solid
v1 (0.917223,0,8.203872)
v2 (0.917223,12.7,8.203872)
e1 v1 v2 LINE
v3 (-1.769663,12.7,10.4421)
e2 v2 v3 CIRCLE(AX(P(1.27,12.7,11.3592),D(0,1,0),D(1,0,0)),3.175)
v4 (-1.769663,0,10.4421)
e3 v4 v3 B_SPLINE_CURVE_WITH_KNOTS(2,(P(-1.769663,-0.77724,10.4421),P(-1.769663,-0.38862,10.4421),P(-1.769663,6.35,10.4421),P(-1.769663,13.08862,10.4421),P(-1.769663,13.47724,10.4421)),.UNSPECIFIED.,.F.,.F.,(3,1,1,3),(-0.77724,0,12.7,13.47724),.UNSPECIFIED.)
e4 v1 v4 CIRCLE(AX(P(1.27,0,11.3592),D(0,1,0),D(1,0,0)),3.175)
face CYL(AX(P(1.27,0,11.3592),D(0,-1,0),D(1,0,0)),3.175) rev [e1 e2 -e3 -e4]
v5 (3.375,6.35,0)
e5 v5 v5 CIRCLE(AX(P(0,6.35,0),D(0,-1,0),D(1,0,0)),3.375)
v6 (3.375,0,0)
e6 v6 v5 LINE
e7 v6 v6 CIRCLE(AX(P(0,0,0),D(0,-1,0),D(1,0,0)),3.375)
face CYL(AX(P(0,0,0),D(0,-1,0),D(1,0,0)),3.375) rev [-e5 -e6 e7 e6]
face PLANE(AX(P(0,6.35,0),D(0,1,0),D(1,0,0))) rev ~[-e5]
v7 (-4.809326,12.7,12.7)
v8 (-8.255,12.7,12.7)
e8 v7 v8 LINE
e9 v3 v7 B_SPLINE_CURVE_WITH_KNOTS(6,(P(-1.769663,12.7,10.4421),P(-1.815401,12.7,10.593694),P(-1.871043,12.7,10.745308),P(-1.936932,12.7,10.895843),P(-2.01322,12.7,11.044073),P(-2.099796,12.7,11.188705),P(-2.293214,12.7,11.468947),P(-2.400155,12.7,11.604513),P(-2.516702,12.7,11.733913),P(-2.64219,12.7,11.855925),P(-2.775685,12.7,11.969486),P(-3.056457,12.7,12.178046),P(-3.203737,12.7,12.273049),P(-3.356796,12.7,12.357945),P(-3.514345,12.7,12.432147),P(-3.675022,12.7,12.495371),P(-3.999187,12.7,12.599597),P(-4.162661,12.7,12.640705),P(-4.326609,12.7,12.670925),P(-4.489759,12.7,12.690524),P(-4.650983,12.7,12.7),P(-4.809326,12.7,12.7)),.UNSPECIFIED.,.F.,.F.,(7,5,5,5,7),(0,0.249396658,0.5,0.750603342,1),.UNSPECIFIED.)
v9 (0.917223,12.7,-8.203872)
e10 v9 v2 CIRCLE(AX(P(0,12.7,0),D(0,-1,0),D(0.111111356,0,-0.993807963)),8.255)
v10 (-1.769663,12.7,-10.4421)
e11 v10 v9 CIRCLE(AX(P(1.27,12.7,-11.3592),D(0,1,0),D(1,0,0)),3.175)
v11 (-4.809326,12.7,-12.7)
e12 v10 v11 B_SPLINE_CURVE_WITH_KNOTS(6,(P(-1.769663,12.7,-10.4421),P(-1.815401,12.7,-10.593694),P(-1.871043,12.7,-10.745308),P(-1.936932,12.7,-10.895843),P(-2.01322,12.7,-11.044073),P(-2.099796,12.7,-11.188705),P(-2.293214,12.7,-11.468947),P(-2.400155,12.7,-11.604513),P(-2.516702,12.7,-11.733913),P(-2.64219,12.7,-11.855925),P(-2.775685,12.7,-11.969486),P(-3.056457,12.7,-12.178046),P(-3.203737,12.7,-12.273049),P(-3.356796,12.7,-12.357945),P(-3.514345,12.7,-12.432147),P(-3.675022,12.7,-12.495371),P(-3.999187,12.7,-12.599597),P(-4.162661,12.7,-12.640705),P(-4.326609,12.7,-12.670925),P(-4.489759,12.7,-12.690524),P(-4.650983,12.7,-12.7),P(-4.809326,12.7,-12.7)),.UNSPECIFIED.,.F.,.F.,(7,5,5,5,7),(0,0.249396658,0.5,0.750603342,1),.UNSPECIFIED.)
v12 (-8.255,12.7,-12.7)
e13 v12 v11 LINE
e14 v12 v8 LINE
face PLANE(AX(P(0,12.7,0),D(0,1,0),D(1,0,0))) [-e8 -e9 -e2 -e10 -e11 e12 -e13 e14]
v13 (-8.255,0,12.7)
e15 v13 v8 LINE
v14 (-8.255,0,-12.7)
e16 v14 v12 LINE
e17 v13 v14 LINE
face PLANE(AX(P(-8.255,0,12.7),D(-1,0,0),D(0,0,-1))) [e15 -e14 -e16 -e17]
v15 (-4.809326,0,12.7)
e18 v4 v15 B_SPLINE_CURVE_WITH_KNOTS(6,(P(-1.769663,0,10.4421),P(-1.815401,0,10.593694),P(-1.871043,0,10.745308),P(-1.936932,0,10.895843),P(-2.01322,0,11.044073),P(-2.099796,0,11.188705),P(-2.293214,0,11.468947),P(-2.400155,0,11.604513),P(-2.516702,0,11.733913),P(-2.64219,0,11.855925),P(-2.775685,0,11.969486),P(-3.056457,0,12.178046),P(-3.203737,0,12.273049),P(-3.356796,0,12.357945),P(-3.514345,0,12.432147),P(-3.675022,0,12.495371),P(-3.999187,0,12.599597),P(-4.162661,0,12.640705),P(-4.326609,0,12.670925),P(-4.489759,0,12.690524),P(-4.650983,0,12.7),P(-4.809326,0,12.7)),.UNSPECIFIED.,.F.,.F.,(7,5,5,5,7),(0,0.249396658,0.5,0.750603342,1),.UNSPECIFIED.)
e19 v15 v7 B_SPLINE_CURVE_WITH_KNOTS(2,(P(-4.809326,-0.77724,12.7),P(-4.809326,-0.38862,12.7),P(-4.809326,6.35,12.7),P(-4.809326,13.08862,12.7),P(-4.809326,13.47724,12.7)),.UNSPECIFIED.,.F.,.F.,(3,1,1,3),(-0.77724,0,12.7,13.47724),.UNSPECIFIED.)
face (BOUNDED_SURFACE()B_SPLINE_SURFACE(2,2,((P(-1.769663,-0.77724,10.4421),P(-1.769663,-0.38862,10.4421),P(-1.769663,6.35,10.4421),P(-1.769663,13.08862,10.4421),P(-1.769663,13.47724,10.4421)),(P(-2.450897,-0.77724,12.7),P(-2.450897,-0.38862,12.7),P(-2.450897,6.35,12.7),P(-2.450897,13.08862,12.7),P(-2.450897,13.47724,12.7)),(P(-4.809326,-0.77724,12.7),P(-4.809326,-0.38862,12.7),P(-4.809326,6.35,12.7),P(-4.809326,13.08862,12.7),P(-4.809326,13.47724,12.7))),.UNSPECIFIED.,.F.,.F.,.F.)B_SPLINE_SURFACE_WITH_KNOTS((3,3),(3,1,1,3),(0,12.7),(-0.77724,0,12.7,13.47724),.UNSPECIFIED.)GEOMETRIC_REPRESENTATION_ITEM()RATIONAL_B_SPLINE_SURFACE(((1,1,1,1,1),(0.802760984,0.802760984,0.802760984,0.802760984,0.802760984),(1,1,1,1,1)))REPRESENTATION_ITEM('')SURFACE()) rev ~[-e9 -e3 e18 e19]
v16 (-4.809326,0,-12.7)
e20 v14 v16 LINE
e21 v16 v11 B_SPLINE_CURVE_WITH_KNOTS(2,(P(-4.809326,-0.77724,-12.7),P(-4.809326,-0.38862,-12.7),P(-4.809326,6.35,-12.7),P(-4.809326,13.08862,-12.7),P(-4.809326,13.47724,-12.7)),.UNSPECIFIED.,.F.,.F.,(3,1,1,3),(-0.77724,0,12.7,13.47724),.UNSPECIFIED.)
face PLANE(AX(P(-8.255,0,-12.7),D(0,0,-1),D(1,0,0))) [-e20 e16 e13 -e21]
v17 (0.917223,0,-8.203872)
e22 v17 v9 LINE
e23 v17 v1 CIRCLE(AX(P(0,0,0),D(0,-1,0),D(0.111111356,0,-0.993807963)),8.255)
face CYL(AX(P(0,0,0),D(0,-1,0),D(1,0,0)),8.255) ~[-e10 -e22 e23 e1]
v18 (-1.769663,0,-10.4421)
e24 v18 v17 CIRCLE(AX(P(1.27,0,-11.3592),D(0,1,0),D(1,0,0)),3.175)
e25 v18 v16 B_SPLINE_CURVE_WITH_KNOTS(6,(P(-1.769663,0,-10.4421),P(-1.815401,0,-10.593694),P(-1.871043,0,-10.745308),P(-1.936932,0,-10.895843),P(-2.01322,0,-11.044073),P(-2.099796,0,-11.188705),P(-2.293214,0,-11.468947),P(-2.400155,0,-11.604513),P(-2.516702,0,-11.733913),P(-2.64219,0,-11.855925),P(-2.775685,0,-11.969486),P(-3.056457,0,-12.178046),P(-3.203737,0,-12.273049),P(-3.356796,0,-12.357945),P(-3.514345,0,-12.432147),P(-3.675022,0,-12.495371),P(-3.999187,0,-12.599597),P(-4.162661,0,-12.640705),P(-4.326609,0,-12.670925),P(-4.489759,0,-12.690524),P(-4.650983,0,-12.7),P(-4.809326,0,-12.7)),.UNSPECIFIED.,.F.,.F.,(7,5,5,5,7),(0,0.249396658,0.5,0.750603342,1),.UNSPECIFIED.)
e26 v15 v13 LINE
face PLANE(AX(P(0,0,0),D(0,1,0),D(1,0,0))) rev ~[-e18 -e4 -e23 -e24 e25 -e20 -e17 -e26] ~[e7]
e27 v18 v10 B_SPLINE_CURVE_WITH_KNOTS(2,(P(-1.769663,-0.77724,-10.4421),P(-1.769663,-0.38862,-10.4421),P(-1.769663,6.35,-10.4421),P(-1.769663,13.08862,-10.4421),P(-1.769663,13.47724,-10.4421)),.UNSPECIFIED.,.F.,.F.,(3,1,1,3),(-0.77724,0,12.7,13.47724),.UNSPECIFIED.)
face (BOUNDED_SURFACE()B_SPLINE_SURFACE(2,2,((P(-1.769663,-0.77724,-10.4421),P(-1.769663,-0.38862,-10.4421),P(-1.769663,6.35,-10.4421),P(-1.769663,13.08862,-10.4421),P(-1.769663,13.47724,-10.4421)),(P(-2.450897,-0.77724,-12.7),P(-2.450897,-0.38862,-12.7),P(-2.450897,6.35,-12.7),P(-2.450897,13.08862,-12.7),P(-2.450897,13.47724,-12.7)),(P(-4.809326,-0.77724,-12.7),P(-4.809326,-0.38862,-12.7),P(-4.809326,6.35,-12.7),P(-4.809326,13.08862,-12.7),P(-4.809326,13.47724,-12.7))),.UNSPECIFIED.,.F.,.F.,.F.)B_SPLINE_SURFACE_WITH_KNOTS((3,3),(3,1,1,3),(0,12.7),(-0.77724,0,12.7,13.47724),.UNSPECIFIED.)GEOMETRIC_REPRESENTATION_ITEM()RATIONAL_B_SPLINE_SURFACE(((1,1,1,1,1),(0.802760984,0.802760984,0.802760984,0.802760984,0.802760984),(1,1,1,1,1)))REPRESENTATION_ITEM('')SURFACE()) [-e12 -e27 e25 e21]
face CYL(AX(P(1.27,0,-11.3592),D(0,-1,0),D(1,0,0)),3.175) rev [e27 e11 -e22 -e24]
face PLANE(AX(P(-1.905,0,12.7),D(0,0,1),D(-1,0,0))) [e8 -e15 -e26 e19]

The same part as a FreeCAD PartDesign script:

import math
import FreeCAD as App
import Part
import Sketcher

V = App.Vector
Q = App.Units.Quantity


def edges_at(feature, points):
    """Names of the edges that pass closest to the given points."""
    edges = feature.Shape.Edges
    near = lambda p: min(range(len(edges)), key=lambda i: edges[i].distToShape(Part.Vertex(*p))[0])
    return sorted({f"Edge{near(p) + 1}" for p in points})

doc = App.newDocument("Part")
body = doc.addObject("PartDesign::Body", "Body")

# Sketch on XZ plane
sketch1 = body.newObject("Sketcher::SketchObject", "Sketch")
sketch1.AttachmentSupport = (doc.getObject("XZ_Plane"), [""])
sketch1.MapMode = "FlatFace"
sketch1.addGeometry([
    Part.ArcOfCircle(Part.Circle(V(1.3, -11.4, 0), V(0, 0, 1), 3.2), math.radians(96), math.radians(180)),  # 0
    Part.LineSegment(V(-1.9, -11.4, 0), V(-1.9, -12.7, 0)),  # 1
    Part.LineSegment(V(-1.9, -12.7, 0), V(-8.3, -12.7, 0)),  # 2
    Part.LineSegment(V(-8.3, -12.7, 0), V(-8.3, 12.7, 0)),  # 3
    Part.LineSegment(V(-8.3, 12.7, 0), V(-1.9, 12.7, 0)),  # 4
    Part.LineSegment(V(-1.9, 12.7, 0), V(-1.9, 11.4, 0)),  # 5
    Part.ArcOfCircle(Part.Circle(V(1.3, 11.4, 0), V(0, 0, 1), 3.2), math.radians(180), math.radians(264)),  # 6
    Part.ArcOfCircle(Part.Circle(V(0, 0, 0), V(0, 0, 1), 8.3), math.radians(-84), math.radians(84)),  # 7
], False)
sketch1.addConstraint([
    Sketcher.Constraint("Tangent", 0, 2, 1, 1),
    Sketcher.Constraint("Coincident", 1, 2, 2, 1),
    Sketcher.Constraint("Coincident", 2, 2, 3, 1),
    Sketcher.Constraint("Coincident", 3, 2, 4, 1),
    Sketcher.Constraint("Coincident", 4, 2, 5, 1),
    Sketcher.Constraint("Tangent", 5, 2, 6, 1),
    Sketcher.Constraint("Tangent", 6, 2, 7, 2),
    Sketcher.Constraint("Tangent", 7, 1, 0, 1),
    Sketcher.Constraint("Vertical", 1),
    Sketcher.Constraint("Horizontal", 2),
    Sketcher.Constraint("Vertical", 3),
    Sketcher.Constraint("Horizontal", 4),
    Sketcher.Constraint("Vertical", 5),
    Sketcher.Constraint("Coincident", 7, 3, -1, 1),
    Sketcher.Constraint("Equal", 0, 6),
    Sketcher.Constraint("Symmetric", 1, 2, 4, 2, -1),
    Sketcher.Constraint("DistanceY", 3, 1, 3, 2, Q("1 in")),
    Sketcher.Constraint("Radius", 0, Q("0.125 in")),
    Sketcher.Constraint("DistanceX", 2, 2, 2, 1, Q("0.25 in")),
    Sketcher.Constraint("Radius", 7, Q("0.325 in")),
    Sketcher.Constraint("DistanceX", -1, 1, 0, 3, Q("0.05 in")),
])
pad1 = body.newObject("PartDesign::Pad", "Pad")
pad1.Profile = sketch1
pad1.Length = Q("0.5 in")
pad1.Reversed = True

# Sketch on XZ plane
sketch2 = body.newObject("Sketcher::SketchObject", "Sketch001")
sketch2.AttachmentSupport = (doc.getObject("XZ_Plane"), [""])
sketch2.MapMode = "FlatFace"
sketch2.addGeometry(Part.Circle(V(0, 0, 0), V(0, 0, 1), 3.4), False)
sketch2.addConstraint([
    Sketcher.Constraint("Coincident", 0, 3, -1, 1),
    Sketcher.Constraint("Diameter", 0, 6.75),
])
pocket1 = body.newObject("PartDesign::Pocket", "Pocket")
pocket1.Profile = sketch2
pocket1.Length = Q("0.25 in")
doc.recompute()

fillet = body.newObject("PartDesign::Fillet", "Fillet")
fillet.Base = (pocket1, edges_at(pocket1, [(-1.905, 6.35, -12.7), (-1.905, 6.35, 12.7)]))
fillet.Radius = Q("0.125 in")

doc.recompute()
